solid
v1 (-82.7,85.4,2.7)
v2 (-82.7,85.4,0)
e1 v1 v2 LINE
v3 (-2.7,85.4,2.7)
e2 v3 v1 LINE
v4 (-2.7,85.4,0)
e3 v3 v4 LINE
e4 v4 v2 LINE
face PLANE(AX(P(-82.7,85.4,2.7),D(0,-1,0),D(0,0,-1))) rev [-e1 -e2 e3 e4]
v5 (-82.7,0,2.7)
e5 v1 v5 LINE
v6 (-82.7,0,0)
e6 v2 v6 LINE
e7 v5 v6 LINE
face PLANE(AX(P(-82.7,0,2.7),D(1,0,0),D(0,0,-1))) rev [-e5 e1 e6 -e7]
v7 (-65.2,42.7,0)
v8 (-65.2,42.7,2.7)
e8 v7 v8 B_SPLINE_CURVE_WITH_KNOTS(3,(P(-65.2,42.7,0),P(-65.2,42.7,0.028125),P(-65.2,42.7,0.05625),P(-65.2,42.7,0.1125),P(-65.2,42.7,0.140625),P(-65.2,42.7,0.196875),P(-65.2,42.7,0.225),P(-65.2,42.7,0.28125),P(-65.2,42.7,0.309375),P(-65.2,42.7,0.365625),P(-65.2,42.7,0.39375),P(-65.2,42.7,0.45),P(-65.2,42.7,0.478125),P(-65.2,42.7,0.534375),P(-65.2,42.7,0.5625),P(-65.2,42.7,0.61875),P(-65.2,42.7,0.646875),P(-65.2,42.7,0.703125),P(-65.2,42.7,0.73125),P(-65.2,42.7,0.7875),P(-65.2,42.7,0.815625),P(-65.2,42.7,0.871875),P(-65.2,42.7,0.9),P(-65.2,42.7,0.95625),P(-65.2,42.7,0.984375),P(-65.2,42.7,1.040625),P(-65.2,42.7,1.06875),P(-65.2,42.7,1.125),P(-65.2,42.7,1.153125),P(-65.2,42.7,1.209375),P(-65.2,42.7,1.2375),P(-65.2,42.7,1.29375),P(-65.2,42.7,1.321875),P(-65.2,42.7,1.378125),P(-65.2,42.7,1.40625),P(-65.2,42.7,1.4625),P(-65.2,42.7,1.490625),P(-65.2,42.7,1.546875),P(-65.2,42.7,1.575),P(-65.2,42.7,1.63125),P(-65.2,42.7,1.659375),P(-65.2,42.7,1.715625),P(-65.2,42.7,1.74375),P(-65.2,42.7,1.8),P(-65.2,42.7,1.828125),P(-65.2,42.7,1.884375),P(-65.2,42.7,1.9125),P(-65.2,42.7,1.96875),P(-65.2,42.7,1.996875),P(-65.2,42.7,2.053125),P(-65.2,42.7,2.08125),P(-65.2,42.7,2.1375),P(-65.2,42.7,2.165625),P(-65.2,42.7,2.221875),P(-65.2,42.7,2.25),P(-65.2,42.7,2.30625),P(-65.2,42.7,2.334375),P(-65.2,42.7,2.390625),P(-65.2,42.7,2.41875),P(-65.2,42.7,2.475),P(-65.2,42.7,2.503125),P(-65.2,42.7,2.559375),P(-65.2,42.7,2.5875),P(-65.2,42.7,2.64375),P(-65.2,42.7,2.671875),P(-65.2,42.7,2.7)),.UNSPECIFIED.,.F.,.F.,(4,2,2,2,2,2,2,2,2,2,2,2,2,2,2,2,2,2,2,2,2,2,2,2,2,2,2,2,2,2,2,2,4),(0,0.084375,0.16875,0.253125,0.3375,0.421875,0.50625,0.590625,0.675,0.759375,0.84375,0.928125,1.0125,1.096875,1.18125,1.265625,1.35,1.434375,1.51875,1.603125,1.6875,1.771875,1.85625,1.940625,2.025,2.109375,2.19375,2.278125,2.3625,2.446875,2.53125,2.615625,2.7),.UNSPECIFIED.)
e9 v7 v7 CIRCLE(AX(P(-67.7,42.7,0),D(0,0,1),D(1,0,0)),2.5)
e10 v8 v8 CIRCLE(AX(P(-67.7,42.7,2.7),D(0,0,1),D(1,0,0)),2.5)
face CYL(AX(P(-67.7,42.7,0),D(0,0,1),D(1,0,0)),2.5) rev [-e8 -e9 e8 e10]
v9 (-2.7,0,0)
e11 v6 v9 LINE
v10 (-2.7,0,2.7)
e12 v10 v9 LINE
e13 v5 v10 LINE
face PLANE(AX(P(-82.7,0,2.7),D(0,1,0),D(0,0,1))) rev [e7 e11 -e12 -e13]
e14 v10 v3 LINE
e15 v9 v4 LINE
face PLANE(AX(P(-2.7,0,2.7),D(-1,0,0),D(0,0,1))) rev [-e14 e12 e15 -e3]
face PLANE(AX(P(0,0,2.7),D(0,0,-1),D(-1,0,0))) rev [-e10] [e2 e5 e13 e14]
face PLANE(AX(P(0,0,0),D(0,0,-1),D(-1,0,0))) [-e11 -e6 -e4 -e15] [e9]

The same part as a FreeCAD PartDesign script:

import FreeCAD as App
import Part
import Sketcher

V = App.Vector
Q = App.Units.Quantity


def add_polygon(sketch, points):
    """Adds a closed chain of lines whose ends are joined by coincident constraints."""
    first, n = sketch.GeometryCount, len(points)
    for a, b in zip(points, points[1:] + points[:1]):
        sketch.addGeometry(Part.LineSegment(App.Vector(*a, 0), App.Vector(*b, 0)), False)
    for i in range(n):
        sketch.addConstraint(Sketcher.Constraint("Coincident", first + i, 2, first + (i + 1) % n, 1))

doc = App.newDocument("Part")
body = doc.addObject("PartDesign::Body", "Body")

# Sketch on XY plane
sketch1 = body.newObject("Sketcher::SketchObject", "Sketch")
sketch1.AttachmentSupport = (doc.getObject("XY_Plane"), [""])
sketch1.MapMode = "FlatFace"
add_polygon(sketch1, [(-83, 85), (-83, 0), (-3, 0), (-3, 85)])  # lines 0-3
sketch1.addConstraint(Sketcher.Constraint("Vertical", 0))
sketch1.addConstraint(Sketcher.Constraint("Horizontal", 1))
sketch1.addConstraint(Sketcher.Constraint("Vertical", 2))
sketch1.addConstraint(Sketcher.Constraint("Horizontal", 3))
sketch1.addConstraint(Sketcher.Constraint("PointOnObject", 0, 2, -1))
sketch1.addConstraint(Sketcher.Constraint("DistanceX", 1, 1, 1, 2, Q("80 mm")))
sketch1.addConstraint(Sketcher.Constraint("DistanceY", 0, 2, 0, 1, Q("85.4 mm")))
sketch1.addConstraint(Sketcher.Constraint("DistanceX", 0, 2, -1, 1, Q("82.7 mm")))
pad1 = body.newObject("PartDesign::Pad", "Pad")
pad1.Profile = sketch1
pad1.Length = 2.7

# Sketch on XY plane
sketch2 = body.newObject("Sketcher::SketchObject", "Sketch001")
sketch2.AttachmentSupport = (doc.getObject("XY_Plane"), [""])
sketch2.MapMode = "FlatFace"
sketch2.AttachmentOffset = App.Placement(V(0, 0, 2.7), App.Rotation())
sketch2.addGeometry(Part.Circle(V(-67.7, 42.7, 0), V(0, 0, 1), 2.5), False)
sketch2.addConstraint(Sketcher.Constraint("Diameter", 0, Q("5 mm")))
sketch2.addConstraint(Sketcher.Constraint("DistanceX", 0, 3, -1, 1, Q("67.7 mm")))
sketch2.addConstraint(Sketcher.Constraint("DistanceY", -1, 1, 0, 3, Q("42.7 mm")))
pocket1 = body.newObject("PartDesign::Pocket", "Pocket")
pocket1.Profile = sketch2
pocket1.Length = 2.7

doc.recompute()
